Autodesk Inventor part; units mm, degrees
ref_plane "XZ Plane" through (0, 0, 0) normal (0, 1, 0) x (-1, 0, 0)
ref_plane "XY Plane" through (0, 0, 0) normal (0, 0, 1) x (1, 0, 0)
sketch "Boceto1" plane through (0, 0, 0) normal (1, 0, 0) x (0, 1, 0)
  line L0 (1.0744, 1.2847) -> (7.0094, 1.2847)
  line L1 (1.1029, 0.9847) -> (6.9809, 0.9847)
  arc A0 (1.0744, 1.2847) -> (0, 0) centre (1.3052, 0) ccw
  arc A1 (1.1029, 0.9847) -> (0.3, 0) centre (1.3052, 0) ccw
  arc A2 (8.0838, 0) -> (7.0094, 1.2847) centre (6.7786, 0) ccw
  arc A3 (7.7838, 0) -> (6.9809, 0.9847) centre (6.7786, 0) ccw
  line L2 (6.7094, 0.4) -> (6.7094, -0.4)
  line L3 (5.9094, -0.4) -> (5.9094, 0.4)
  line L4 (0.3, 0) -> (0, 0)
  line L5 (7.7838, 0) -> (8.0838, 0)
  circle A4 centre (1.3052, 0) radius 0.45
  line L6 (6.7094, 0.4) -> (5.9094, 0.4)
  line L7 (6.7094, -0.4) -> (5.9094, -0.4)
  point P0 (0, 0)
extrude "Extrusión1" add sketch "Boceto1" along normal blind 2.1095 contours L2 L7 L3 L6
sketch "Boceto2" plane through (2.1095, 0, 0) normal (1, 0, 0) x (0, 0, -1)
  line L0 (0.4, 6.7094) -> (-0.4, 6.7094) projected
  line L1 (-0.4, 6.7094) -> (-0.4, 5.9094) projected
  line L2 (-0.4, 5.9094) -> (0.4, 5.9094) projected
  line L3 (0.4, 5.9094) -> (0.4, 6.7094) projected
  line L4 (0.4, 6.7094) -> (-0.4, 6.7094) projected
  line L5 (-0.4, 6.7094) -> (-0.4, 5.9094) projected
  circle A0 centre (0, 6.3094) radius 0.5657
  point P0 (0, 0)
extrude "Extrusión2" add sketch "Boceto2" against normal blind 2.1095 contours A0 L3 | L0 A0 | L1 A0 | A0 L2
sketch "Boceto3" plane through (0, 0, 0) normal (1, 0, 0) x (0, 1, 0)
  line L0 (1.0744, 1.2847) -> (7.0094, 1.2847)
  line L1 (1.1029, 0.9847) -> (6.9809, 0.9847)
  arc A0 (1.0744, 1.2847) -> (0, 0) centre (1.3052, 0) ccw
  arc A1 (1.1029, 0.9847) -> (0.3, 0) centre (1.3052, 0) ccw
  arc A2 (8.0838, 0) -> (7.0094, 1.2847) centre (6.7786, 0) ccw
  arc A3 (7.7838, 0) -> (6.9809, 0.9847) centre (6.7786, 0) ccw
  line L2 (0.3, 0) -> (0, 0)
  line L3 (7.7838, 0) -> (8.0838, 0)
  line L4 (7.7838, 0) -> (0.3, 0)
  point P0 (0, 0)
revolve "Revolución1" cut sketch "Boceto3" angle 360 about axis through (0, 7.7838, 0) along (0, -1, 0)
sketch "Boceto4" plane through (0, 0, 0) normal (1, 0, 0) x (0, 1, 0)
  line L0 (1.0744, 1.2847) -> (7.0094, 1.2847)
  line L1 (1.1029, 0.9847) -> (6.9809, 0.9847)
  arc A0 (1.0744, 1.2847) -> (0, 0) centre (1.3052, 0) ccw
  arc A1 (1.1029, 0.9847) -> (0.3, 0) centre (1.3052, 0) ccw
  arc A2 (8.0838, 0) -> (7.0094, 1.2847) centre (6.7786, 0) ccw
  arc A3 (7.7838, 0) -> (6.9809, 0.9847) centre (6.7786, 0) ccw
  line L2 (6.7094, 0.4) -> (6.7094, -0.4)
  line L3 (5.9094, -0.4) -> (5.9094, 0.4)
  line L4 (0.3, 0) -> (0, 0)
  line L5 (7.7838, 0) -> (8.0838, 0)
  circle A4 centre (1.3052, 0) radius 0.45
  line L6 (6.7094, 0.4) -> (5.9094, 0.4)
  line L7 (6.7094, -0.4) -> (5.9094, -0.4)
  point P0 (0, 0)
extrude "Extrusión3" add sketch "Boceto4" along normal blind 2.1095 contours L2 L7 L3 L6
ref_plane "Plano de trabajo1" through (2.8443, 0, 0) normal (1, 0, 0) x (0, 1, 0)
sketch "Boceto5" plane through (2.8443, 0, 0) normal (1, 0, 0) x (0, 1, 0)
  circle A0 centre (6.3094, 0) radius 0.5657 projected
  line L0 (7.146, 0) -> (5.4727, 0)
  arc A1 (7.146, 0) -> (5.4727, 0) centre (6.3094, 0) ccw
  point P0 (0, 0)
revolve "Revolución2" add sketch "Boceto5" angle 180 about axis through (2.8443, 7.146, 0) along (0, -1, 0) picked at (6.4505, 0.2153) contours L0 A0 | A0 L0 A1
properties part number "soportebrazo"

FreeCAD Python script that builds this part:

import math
import FreeCAD as App
import Part
import Sketcher

V = App.Vector
Q = App.Units.Quantity

doc = App.newDocument("Part")
body = doc.addObject("PartDesign::Body", "Body")

# Sketch on YZ plane
sketch1 = body.newObject("Sketcher::SketchObject", "Sketch")
sketch1.AttachmentSupport = (doc.getObject("YZ_Plane"), [""])
sketch1.MapMode = "FlatFace"
sketch1.addGeometry([
    Part.LineSegment(V(6.7, -0.4, 0), V(6.7, 0.4, 0)),
    Part.LineSegment(V(6.7, 0.4, 0), V(5.9, 0.4, 0)),
    Part.LineSegment(V(5.9, 0.4, 0), V(5.9, -0.4, 0)),
    Part.LineSegment(V(5.9, -0.4, 0), V(6.7, -0.4, 0)),
], False)
sketch1.addConstraint([
    Sketcher.Constraint("Coincident", 0, 2, 1, 1),
    Sketcher.Constraint("Coincident", 1, 2, 2, 1),
    Sketcher.Constraint("Coincident", 2, 2, 3, 1),
    Sketcher.Constraint("Coincident", 3, 2, 0, 1),
    Sketcher.Constraint("Vertical", 0),
    Sketcher.Constraint("Horizontal", 1),
    Sketcher.Constraint("Vertical", 2),
    Sketcher.Constraint("Horizontal", 3),
    Sketcher.Constraint("Equal", 3, 0),
    Sketcher.Constraint("DistanceX", 1, 2, 1, 1, Q("0.8 mm")),
    Sketcher.Constraint("DistanceY", -1, 1, 0, 2, Q("0.4 mm")),
    Sketcher.Constraint("DistanceX", -1, 1, 0, 2, Q("6.7094 mm")),
])
pad1 = body.newObject("PartDesign::Pad", "Pad")
pad1.Profile = sketch1
pad1.Length = 2.1095

# Sketch on YZ plane
sketch2 = body.newObject("Sketcher::SketchObject", "Sketch001")
sketch2.AttachmentSupport = (doc.getObject("YZ_Plane"), [""])
sketch2.MapMode = "FlatFace"
sketch2.AttachmentOffset = App.Placement(V(0, 0, 2.1095), App.Rotation())
sketch2.addGeometry([
    Part.ArcOfCircle(Part.Circle(V(6.3, 0, 0), V(0, 0, 1), 0.6), math.radians(-135), math.radians(-45)),  # 0
    Part.LineSegment(V(5.9, -0.4, 0), V(6.7, -0.4, 0)),  # 1
    Part.LineSegment(V(6.7, 0.4, 0), V(6.7, -0.4, 0)),  # 2
    Part.ArcOfCircle(Part.Circle(V(6.3, 0, 0), V(0, 0, 1), 0.6), math.radians(-45), math.radians(45)),  # 3
    Part.LineSegment(V(5.9, 0.4, 0), V(6.7, 0.4, 0)),  # 4
    Part.ArcOfCircle(Part.Circle(V(6.3, 0, 0), V(0, 0, 1), 0.6), math.radians(45), math.radians(135)),  # 5
    Part.ArcOfCircle(Part.Circle(V(6.3, 0, 0), V(0, 0, 1), 0.6), math.radians(135), math.radians(225)),  # 6
    Part.LineSegment(V(5.9, 0.4, 0), V(5.9, -0.4, 0)),  # 7
], False)
sketch2.addConstraint([
    Sketcher.Constraint("Coincident", 0, 1, 1, 1),
    Sketcher.Constraint("Coincident", 1, 2, 0, 2),
    Sketcher.Constraint("Coincident", 2, 1, 3, 2),
    Sketcher.Constraint("Coincident", 3, 1, 2, 2),
    Sketcher.Constraint("Coincident", 4, 1, 5, 2),
    Sketcher.Constraint("Coincident", 5, 1, 4, 2),
    Sketcher.Constraint("Coincident", 6, 1, 7, 1),
    Sketcher.Constraint("Coincident", 7, 2, 6, 2),
    Sketcher.Constraint("Horizontal", 1),
    Sketcher.Constraint("Vertical", 2),
    Sketcher.Constraint("Horizontal", 4),
    Sketcher.Constraint("Vertical", 7),
    Sketcher.Constraint("Coincident", 3, 3, 0, 3),
    Sketcher.Constraint("Coincident", 5, 3, 0, 3),
    Sketcher.Constraint("Coincident", 6, 3, 0, 3),
    Sketcher.Constraint("Coincident", 3, 1, 1, 2),
    Sketcher.Constraint("Coincident", 5, 1, 2, 1),
    Sketcher.Constraint("Coincident", 6, 1, 4, 1),
    Sketcher.Constraint("PointOnObject", 0, 3, -1),
    Sketcher.Constraint("Equal", 4, 2),
    Sketcher.Constraint("DistanceX", 1, 1, 1, 2, Q("0.8 mm")),
    Sketcher.Constraint("DistanceX", -1, 1, 0, 3, Q("6.3094 mm")),
])
pad2 = body.newObject("PartDesign::Pad", "Pad001")
pad2.Profile = sketch2
pad2.Length = 2.1095
pad2.Reversed = True

# Sketch on YZ plane
sketch3 = body.newObject("Sketcher::SketchObject", "Sketch002")
sketch3.AttachmentSupport = (doc.getObject("YZ_Plane"), [""])
sketch3.MapMode = "FlatFace"
sketch3.addGeometry([
    Part.LineSegment(V(7, 1.3, 0), V(1.1, 1.3, 0)),
    Part.ArcOfCircle(Part.Circle(V(1.3, 0, 0), V(0, 0, 1), 1.3), math.radians(100), math.radians(180)),
    Part.LineSegment(V(0, 0, 0), V(8.1, 0, 0)),
    Part.ArcOfCircle(Part.Circle(V(6.8, 0, 0), V(0, 0, 1), 1.3), math.radians(0), math.radians(80)),
], False)
sketch3.addConstraint([
    Sketcher.Constraint("Coincident", 0, 2, 1, 1),
    Sketcher.Constraint("Coincident", 1, 2, 2, 1),
    Sketcher.Constraint("Coincident", 2, 2, 3, 1),
    Sketcher.Constraint("Coincident", 3, 2, 0, 1),
    Sketcher.Constraint("Horizontal", 0),
    Sketcher.Constraint("Horizontal", 2),
    Sketcher.Constraint("Coincident", 1, 2, -1, 1),
    Sketcher.Constraint("Equal", 1, 3),
    Sketcher.Constraint("PointOnObject", 1, 3, -1),
    Sketcher.Constraint("PointOnObject", 3, 3, -1),
    Sketcher.Constraint("Radius", 1, Q("1.3053 mm")),
    Sketcher.Constraint("DistanceX", 0, 2, 0, 1, Q("5.935 mm")),
    Sketcher.Constraint("DistanceX", 2, 1, 2, 2, Q("8.0838 mm")),
])
groove = body.newObject("PartDesign::Groove", "Groove")
groove.Profile = sketch3
groove.ReferenceAxis = (sketch3, ["H_Axis"])
groove.Angle = 360

# Sketch on YZ plane
sketch4 = body.newObject("Sketcher::SketchObject", "Sketch003")
sketch4.AttachmentSupport = (doc.getObject("YZ_Plane"), [""])
sketch4.MapMode = "FlatFace"
sketch4.addGeometry([
    Part.LineSegment(V(6.7, -0.4, 0), V(6.7, 0.4, 0)),
    Part.LineSegment(V(6.7, 0.4, 0), V(5.9, 0.4, 0)),
    Part.LineSegment(V(5.9, 0.4, 0), V(5.9, -0.4, 0)),
    Part.LineSegment(V(5.9, -0.4, 0), V(6.7, -0.4, 0)),
], False)
sketch4.addConstraint([
    Sketcher.Constraint("Coincident", 0, 2, 1, 1),
    Sketcher.Constraint("Coincident", 1, 2, 2, 1),
    Sketcher.Constraint("Coincident", 2, 2, 3, 1),
    Sketcher.Constraint("Coincident", 3, 2, 0, 1),
    Sketcher.Constraint("Vertical", 0),
    Sketcher.Constraint("Horizontal", 1),
    Sketcher.Constraint("Vertical", 2),
    Sketcher.Constraint("Horizontal", 3),
    Sketcher.Constraint("Equal", 3, 0),
    Sketcher.Constraint("DistanceX", 1, 2, 1, 1, Q("0.8 mm")),
    Sketcher.Constraint("DistanceY", -1, 1, 0, 2, Q("0.4 mm")),
    Sketcher.Constraint("DistanceX", -1, 1, 0, 2, Q("6.7094 mm")),
])
pad3 = body.newObject("PartDesign::Pad", "Pad002")
pad3.Profile = sketch4
pad3.Length = 2.1095

# Sketch on YZ plane
sketch5 = body.newObject("Sketcher::SketchObject", "Sketch004")
sketch5.AttachmentSupport = (doc.getObject("YZ_Plane"), [""])
sketch5.MapMode = "FlatFace"
sketch5.AttachmentOffset = App.Placement(V(0, 0, 2.8443), App.Rotation())
sketch5.addGeometry([
    Part.ArcOfCircle(Part.Circle(V(6.3, 0, 0), V(0, 0, 1), 0.8), math.radians(0), math.radians(180)),
    Part.LineSegment(V(5.5, 0, 0), V(7.1, 0, 0)),
], False)
sketch5.addConstraint([
    Sketcher.Constraint("Coincident", 0, 1, 1, 2),
    Sketcher.Constraint("Coincident", 1, 1, 0, 2),
    Sketcher.Constraint("Horizontal", 1),
    Sketcher.Constraint("PointOnObject", 0, 3, -1),
    Sketcher.Constraint("PointOnObject", 0, 1, -1),
    Sketcher.Constraint("Radius", 0, Q("0.8366 mm")),
    Sketcher.Constraint("DistanceX", -1, 1, 0, 1, Q("7.146 mm")),
])
revolution = body.newObject("PartDesign::Revolution", "Revolution")
revolution.Profile = sketch5
revolution.ReferenceAxis = (sketch5, ["H_Axis"])
revolution.Angle = 180
revolution.Reversed = True

doc.recompute()
